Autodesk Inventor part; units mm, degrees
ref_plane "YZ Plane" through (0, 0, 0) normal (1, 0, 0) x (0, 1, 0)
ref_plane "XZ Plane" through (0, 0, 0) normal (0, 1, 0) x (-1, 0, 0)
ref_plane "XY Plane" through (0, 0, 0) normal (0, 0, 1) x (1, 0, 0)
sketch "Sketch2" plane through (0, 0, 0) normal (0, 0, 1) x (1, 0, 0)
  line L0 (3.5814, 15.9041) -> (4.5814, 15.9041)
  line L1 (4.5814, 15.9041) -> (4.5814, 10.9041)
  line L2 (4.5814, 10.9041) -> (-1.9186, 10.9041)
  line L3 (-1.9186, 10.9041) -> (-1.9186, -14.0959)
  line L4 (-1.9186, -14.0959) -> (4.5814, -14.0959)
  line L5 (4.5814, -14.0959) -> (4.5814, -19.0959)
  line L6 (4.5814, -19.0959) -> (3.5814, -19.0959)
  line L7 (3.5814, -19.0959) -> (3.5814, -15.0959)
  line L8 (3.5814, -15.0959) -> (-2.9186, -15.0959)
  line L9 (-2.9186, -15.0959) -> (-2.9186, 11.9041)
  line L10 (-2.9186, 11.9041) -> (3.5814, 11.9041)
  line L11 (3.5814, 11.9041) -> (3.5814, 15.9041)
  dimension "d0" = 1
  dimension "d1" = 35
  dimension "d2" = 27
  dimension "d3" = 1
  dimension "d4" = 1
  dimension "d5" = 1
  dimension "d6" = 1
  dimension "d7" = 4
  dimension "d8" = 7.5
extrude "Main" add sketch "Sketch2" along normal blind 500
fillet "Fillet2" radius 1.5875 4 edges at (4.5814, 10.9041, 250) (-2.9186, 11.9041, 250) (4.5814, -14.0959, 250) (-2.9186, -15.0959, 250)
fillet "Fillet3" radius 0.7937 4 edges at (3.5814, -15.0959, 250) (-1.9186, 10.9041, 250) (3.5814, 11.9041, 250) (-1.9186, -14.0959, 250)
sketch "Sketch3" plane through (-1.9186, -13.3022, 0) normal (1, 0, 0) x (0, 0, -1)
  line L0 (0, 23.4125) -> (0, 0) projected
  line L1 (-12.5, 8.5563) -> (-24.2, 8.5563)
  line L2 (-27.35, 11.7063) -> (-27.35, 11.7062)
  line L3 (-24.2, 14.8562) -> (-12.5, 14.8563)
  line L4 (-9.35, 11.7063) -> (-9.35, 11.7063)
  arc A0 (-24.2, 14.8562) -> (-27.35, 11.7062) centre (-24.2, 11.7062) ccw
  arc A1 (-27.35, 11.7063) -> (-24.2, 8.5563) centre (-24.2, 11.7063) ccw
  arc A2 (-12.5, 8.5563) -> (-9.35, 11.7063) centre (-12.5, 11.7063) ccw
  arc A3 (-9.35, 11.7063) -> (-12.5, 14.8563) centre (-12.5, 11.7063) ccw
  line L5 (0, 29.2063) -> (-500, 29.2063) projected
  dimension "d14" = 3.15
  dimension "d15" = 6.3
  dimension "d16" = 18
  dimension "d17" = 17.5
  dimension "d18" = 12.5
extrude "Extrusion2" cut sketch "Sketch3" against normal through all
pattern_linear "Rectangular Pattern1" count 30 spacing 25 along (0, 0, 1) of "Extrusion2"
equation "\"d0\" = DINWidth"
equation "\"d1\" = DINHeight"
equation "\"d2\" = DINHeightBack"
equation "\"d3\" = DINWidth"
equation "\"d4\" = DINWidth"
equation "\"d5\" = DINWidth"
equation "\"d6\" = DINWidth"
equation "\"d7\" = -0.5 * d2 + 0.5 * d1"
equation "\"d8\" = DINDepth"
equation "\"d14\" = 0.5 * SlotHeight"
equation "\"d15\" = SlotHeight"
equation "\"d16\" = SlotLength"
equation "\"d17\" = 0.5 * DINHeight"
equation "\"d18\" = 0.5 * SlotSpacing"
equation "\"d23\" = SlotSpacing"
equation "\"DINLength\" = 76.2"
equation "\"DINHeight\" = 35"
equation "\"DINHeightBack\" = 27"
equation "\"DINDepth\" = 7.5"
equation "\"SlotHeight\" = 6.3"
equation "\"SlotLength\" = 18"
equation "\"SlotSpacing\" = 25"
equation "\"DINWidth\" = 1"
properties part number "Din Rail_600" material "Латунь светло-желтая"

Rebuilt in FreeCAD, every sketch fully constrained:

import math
import FreeCAD as App
import Part
import Sketcher
Q = App.Units.Quantity


def edges_at(feature, points):
    """Names of the edges that pass closest to the given points."""
    edges = feature.Shape.Edges
    near = lambda p: min(range(len(edges)), key=lambda i: edges[i].distToShape(Part.Vertex(*p))[0])
    return sorted({f"Edge{near(p) + 1}" for p in points})

doc = App.newDocument("Part")
body = doc.addObject("PartDesign::Body", "Body")

sketch1 = body.newObject("Sketcher::SketchObject", "Sketch")
sketch1.AttachmentSupport = (doc.getObject("XY_Plane"), [""])
sketch1.MapMode = "FlatFace"
sketch1.addGeometry(Part.LineSegment(App.Vector(4.6, 15.9, 0), App.Vector(3.6, 15.9, 0)), False)
sketch1.addGeometry(Part.LineSegment(App.Vector(3.6, 15.9, 0), App.Vector(3.6, 11.9, 0)), False)
sketch1.addGeometry(Part.LineSegment(App.Vector(3.6, 11.9, 0), App.Vector(-2.9, 11.9, 0)), False)
sketch1.addGeometry(Part.LineSegment(App.Vector(-2.9, 11.9, 0), App.Vector(-2.9, -15.1, 0)), False)
sketch1.addGeometry(Part.LineSegment(App.Vector(-2.9, -15.1, 0), App.Vector(3.6, -15.1, 0)), False)
sketch1.addGeometry(Part.LineSegment(App.Vector(3.6, -15.1, 0), App.Vector(3.6, -19.1, 0)), False)
sketch1.addGeometry(Part.LineSegment(App.Vector(3.6, -19.1, 0), App.Vector(4.6, -19.1, 0)), False)
sketch1.addGeometry(Part.LineSegment(App.Vector(4.6, -19.1, 0), App.Vector(4.6, -14.1, 0)), False)
sketch1.addGeometry(Part.LineSegment(App.Vector(4.6, -14.1, 0), App.Vector(-1.9, -14.1, 0)), False)
sketch1.addGeometry(Part.LineSegment(App.Vector(-1.9, -14.1, 0), App.Vector(-1.9, 10.9, 0)), False)
sketch1.addGeometry(Part.LineSegment(App.Vector(-1.9, 10.9, 0), App.Vector(4.6, 10.9, 0)), False)
sketch1.addGeometry(Part.LineSegment(App.Vector(4.6, 10.9, 0), App.Vector(4.6, 15.9, 0)), False)
sketch1.addConstraint(Sketcher.Constraint("Coincident", 0, 2, 1, 1))
sketch1.addConstraint(Sketcher.Constraint("Coincident", 1, 2, 2, 1))
sketch1.addConstraint(Sketcher.Constraint("Coincident", 2, 2, 3, 1))
sketch1.addConstraint(Sketcher.Constraint("Coincident", 3, 2, 4, 1))
sketch1.addConstraint(Sketcher.Constraint("Coincident", 4, 2, 5, 1))
sketch1.addConstraint(Sketcher.Constraint("Coincident", 5, 2, 6, 1))
sketch1.addConstraint(Sketcher.Constraint("Coincident", 6, 2, 7, 1))
sketch1.addConstraint(Sketcher.Constraint("Coincident", 7, 2, 8, 1))
sketch1.addConstraint(Sketcher.Constraint("Coincident", 8, 2, 9, 1))
sketch1.addConstraint(Sketcher.Constraint("Coincident", 9, 2, 10, 1))
sketch1.addConstraint(Sketcher.Constraint("Coincident", 10, 2, 11, 1))
sketch1.addConstraint(Sketcher.Constraint("Coincident", 11, 2, 0, 1))
sketch1.addConstraint(Sketcher.Constraint("Horizontal", 0))
sketch1.addConstraint(Sketcher.Constraint("Vertical", 1))
sketch1.addConstraint(Sketcher.Constraint("Horizontal", 2))
sketch1.addConstraint(Sketcher.Constraint("Vertical", 3))
sketch1.addConstraint(Sketcher.Constraint("Horizontal", 4))
sketch1.addConstraint(Sketcher.Constraint("Vertical", 5))
sketch1.addConstraint(Sketcher.Constraint("Horizontal", 6))
sketch1.addConstraint(Sketcher.Constraint("Vertical", 7))
sketch1.addConstraint(Sketcher.Constraint("Horizontal", 8))
sketch1.addConstraint(Sketcher.Constraint("Vertical", 9))
sketch1.addConstraint(Sketcher.Constraint("Horizontal", 10))
sketch1.addConstraint(Sketcher.Constraint("Vertical", 11))
sketch1.addConstraint(Sketcher.Constraint("Vertical", 1, 2, 4, 2))
sketch1.addConstraint(Sketcher.Constraint("Vertical", 7, 2, 10, 2))
sketch1.addConstraint(Sketcher.Constraint("Equal", 4, 8))
sketch1.addConstraint(Sketcher.Constraint("Equal", 1, 5))
sketch1.addConstraint(Sketcher.Constraint("Equal", 7, 11))
sketch1.addConstraint(Sketcher.Constraint("DistanceX", 0, 2, 0, 1, Q("1 mm")))
sketch1.addConstraint(Sketcher.Constraint("DistanceY", 1, 2, 1, 1, Q("4 mm")))
sketch1.addConstraint(Sketcher.Constraint("DistanceY", 3, 2, 3, 1, Q("27 mm")))
sketch1.addConstraint(Sketcher.Constraint("DistanceY", 4, 2, 7, 2, Q("1 mm")))
sketch1.addConstraint(Sketcher.Constraint("DistanceX", 3, 2, 6, 2, Q("7.5 mm")))
sketch1.addConstraint(Sketcher.Constraint("DistanceY", -1, 1, 0, 2, Q("15.904 mm")))
sketch1.addConstraint(Sketcher.Constraint("DistanceX", -1, 1, 0, 2, Q("3.5814 mm")))
pad1 = body.newObject("PartDesign::Pad", "Pad")
pad1.Profile = sketch1
pad1.Length = 500
doc.recompute()

fillet = body.newObject("PartDesign::Fillet", "Fillet")
fillet.Base = (pad1, edges_at(pad1, [
    (4.581, 10.904, 250),
    (-2.919, 11.904, 250),
    (4.581, -14.096, 250),
    (-2.919, -15.096, 250),
]))
fillet.Radius = 1.5875
doc.recompute()

fillet2 = body.newObject("PartDesign::Fillet", "Fillet001")
fillet2.Base = (fillet, edges_at(fillet, [
    (3.581, -15.096, 250),
    (-1.919, 10.904, 250),
    (3.581, 11.904, 250),
    (-1.919, -14.096, 250),
]))
fillet2.Radius = 0.7937

sketch2 = body.newObject("Sketcher::SketchObject", "Sketch001")
sketch2.AttachmentSupport = (doc.getObject("YZ_Plane"), [""])
sketch2.MapMode = "FlatFace"
sketch2.AttachmentOffset = App.Placement(App.Vector(0, 0, -1.9186), App.Rotation())
sketch2.addGeometry(Part.LineSegment(App.Vector(-4.7, 24.2, 0), App.Vector(-4.7, 12.5, 0)), False)
sketch2.addGeometry(Part.ArcOfCircle(Part.Circle(App.Vector(-1.6, 12.5, 0), App.Vector(0, 0, 1), 3.2), math.radians(180), math.radians(360)), False)
sketch2.addGeometry(Part.LineSegment(App.Vector(1.6, 12.5, 0), App.Vector(1.6, 24.2, 0)), False)
sketch2.addGeometry(Part.ArcOfCircle(Part.Circle(App.Vector(-1.6, 24.2, 0), App.Vector(0, 0, 1), 3.1), math.radians(0), math.radians(90)), False)
sketch2.addGeometry(Part.ArcOfCircle(Part.Circle(App.Vector(-1.6, 24.2, 0), App.Vector(0, 0, 1), 3.2), math.radians(90), math.radians(180)), False)
sketch2.addConstraint(Sketcher.Constraint("Tangent", 0, 2, 1, 1))
sketch2.addConstraint(Sketcher.Constraint("Tangent", 1, 2, 2, 1))
sketch2.addConstraint(Sketcher.Constraint("Tangent", 2, 2, 3, 1))
sketch2.addConstraint(Sketcher.Constraint("Tangent", 3, 2, 4, 1))
sketch2.addConstraint(Sketcher.Constraint("Tangent", 4, 2, 0, 1))
sketch2.addConstraint(Sketcher.Constraint("Vertical", 0))
sketch2.addConstraint(Sketcher.Constraint("Vertical", 2))
sketch2.addConstraint(Sketcher.Constraint("Equal", 1, 3))
sketch2.addConstraint(Sketcher.Constraint("Vertical", 4, 3, 3, 2))
sketch2.addConstraint(Sketcher.Constraint("Radius", 1, Q("3.15 mm")))
sketch2.addConstraint(Sketcher.Constraint("DistanceY", -1, 1, 1, 3, Q("12.5 mm")))
sketch2.addConstraint(Sketcher.Constraint("DistanceY", 0, 2, 0, 1, Q("11.7 mm")))
sketch2.addConstraint(Sketcher.Constraint("DistanceX", 1, 3, -1, 1, Q("1.596 mm")))
pocket1 = body.newObject("PartDesign::Pocket", "Pocket")
pocket1.Profile = sketch2
pocket1.Type = "ThroughAll"
doc.recompute()

linearpattern = body.newObject("PartDesign::LinearPattern", "LinearPattern")
linearpattern.Originals = [pocket1]
linearpattern.Direction = (doc.getObject("Z_Axis"), [""])
linearpattern.Mode = "offset"
linearpattern.Offset = 25
linearpattern.Occurrences = 30
body.Tip = linearpattern

doc.recompute()
